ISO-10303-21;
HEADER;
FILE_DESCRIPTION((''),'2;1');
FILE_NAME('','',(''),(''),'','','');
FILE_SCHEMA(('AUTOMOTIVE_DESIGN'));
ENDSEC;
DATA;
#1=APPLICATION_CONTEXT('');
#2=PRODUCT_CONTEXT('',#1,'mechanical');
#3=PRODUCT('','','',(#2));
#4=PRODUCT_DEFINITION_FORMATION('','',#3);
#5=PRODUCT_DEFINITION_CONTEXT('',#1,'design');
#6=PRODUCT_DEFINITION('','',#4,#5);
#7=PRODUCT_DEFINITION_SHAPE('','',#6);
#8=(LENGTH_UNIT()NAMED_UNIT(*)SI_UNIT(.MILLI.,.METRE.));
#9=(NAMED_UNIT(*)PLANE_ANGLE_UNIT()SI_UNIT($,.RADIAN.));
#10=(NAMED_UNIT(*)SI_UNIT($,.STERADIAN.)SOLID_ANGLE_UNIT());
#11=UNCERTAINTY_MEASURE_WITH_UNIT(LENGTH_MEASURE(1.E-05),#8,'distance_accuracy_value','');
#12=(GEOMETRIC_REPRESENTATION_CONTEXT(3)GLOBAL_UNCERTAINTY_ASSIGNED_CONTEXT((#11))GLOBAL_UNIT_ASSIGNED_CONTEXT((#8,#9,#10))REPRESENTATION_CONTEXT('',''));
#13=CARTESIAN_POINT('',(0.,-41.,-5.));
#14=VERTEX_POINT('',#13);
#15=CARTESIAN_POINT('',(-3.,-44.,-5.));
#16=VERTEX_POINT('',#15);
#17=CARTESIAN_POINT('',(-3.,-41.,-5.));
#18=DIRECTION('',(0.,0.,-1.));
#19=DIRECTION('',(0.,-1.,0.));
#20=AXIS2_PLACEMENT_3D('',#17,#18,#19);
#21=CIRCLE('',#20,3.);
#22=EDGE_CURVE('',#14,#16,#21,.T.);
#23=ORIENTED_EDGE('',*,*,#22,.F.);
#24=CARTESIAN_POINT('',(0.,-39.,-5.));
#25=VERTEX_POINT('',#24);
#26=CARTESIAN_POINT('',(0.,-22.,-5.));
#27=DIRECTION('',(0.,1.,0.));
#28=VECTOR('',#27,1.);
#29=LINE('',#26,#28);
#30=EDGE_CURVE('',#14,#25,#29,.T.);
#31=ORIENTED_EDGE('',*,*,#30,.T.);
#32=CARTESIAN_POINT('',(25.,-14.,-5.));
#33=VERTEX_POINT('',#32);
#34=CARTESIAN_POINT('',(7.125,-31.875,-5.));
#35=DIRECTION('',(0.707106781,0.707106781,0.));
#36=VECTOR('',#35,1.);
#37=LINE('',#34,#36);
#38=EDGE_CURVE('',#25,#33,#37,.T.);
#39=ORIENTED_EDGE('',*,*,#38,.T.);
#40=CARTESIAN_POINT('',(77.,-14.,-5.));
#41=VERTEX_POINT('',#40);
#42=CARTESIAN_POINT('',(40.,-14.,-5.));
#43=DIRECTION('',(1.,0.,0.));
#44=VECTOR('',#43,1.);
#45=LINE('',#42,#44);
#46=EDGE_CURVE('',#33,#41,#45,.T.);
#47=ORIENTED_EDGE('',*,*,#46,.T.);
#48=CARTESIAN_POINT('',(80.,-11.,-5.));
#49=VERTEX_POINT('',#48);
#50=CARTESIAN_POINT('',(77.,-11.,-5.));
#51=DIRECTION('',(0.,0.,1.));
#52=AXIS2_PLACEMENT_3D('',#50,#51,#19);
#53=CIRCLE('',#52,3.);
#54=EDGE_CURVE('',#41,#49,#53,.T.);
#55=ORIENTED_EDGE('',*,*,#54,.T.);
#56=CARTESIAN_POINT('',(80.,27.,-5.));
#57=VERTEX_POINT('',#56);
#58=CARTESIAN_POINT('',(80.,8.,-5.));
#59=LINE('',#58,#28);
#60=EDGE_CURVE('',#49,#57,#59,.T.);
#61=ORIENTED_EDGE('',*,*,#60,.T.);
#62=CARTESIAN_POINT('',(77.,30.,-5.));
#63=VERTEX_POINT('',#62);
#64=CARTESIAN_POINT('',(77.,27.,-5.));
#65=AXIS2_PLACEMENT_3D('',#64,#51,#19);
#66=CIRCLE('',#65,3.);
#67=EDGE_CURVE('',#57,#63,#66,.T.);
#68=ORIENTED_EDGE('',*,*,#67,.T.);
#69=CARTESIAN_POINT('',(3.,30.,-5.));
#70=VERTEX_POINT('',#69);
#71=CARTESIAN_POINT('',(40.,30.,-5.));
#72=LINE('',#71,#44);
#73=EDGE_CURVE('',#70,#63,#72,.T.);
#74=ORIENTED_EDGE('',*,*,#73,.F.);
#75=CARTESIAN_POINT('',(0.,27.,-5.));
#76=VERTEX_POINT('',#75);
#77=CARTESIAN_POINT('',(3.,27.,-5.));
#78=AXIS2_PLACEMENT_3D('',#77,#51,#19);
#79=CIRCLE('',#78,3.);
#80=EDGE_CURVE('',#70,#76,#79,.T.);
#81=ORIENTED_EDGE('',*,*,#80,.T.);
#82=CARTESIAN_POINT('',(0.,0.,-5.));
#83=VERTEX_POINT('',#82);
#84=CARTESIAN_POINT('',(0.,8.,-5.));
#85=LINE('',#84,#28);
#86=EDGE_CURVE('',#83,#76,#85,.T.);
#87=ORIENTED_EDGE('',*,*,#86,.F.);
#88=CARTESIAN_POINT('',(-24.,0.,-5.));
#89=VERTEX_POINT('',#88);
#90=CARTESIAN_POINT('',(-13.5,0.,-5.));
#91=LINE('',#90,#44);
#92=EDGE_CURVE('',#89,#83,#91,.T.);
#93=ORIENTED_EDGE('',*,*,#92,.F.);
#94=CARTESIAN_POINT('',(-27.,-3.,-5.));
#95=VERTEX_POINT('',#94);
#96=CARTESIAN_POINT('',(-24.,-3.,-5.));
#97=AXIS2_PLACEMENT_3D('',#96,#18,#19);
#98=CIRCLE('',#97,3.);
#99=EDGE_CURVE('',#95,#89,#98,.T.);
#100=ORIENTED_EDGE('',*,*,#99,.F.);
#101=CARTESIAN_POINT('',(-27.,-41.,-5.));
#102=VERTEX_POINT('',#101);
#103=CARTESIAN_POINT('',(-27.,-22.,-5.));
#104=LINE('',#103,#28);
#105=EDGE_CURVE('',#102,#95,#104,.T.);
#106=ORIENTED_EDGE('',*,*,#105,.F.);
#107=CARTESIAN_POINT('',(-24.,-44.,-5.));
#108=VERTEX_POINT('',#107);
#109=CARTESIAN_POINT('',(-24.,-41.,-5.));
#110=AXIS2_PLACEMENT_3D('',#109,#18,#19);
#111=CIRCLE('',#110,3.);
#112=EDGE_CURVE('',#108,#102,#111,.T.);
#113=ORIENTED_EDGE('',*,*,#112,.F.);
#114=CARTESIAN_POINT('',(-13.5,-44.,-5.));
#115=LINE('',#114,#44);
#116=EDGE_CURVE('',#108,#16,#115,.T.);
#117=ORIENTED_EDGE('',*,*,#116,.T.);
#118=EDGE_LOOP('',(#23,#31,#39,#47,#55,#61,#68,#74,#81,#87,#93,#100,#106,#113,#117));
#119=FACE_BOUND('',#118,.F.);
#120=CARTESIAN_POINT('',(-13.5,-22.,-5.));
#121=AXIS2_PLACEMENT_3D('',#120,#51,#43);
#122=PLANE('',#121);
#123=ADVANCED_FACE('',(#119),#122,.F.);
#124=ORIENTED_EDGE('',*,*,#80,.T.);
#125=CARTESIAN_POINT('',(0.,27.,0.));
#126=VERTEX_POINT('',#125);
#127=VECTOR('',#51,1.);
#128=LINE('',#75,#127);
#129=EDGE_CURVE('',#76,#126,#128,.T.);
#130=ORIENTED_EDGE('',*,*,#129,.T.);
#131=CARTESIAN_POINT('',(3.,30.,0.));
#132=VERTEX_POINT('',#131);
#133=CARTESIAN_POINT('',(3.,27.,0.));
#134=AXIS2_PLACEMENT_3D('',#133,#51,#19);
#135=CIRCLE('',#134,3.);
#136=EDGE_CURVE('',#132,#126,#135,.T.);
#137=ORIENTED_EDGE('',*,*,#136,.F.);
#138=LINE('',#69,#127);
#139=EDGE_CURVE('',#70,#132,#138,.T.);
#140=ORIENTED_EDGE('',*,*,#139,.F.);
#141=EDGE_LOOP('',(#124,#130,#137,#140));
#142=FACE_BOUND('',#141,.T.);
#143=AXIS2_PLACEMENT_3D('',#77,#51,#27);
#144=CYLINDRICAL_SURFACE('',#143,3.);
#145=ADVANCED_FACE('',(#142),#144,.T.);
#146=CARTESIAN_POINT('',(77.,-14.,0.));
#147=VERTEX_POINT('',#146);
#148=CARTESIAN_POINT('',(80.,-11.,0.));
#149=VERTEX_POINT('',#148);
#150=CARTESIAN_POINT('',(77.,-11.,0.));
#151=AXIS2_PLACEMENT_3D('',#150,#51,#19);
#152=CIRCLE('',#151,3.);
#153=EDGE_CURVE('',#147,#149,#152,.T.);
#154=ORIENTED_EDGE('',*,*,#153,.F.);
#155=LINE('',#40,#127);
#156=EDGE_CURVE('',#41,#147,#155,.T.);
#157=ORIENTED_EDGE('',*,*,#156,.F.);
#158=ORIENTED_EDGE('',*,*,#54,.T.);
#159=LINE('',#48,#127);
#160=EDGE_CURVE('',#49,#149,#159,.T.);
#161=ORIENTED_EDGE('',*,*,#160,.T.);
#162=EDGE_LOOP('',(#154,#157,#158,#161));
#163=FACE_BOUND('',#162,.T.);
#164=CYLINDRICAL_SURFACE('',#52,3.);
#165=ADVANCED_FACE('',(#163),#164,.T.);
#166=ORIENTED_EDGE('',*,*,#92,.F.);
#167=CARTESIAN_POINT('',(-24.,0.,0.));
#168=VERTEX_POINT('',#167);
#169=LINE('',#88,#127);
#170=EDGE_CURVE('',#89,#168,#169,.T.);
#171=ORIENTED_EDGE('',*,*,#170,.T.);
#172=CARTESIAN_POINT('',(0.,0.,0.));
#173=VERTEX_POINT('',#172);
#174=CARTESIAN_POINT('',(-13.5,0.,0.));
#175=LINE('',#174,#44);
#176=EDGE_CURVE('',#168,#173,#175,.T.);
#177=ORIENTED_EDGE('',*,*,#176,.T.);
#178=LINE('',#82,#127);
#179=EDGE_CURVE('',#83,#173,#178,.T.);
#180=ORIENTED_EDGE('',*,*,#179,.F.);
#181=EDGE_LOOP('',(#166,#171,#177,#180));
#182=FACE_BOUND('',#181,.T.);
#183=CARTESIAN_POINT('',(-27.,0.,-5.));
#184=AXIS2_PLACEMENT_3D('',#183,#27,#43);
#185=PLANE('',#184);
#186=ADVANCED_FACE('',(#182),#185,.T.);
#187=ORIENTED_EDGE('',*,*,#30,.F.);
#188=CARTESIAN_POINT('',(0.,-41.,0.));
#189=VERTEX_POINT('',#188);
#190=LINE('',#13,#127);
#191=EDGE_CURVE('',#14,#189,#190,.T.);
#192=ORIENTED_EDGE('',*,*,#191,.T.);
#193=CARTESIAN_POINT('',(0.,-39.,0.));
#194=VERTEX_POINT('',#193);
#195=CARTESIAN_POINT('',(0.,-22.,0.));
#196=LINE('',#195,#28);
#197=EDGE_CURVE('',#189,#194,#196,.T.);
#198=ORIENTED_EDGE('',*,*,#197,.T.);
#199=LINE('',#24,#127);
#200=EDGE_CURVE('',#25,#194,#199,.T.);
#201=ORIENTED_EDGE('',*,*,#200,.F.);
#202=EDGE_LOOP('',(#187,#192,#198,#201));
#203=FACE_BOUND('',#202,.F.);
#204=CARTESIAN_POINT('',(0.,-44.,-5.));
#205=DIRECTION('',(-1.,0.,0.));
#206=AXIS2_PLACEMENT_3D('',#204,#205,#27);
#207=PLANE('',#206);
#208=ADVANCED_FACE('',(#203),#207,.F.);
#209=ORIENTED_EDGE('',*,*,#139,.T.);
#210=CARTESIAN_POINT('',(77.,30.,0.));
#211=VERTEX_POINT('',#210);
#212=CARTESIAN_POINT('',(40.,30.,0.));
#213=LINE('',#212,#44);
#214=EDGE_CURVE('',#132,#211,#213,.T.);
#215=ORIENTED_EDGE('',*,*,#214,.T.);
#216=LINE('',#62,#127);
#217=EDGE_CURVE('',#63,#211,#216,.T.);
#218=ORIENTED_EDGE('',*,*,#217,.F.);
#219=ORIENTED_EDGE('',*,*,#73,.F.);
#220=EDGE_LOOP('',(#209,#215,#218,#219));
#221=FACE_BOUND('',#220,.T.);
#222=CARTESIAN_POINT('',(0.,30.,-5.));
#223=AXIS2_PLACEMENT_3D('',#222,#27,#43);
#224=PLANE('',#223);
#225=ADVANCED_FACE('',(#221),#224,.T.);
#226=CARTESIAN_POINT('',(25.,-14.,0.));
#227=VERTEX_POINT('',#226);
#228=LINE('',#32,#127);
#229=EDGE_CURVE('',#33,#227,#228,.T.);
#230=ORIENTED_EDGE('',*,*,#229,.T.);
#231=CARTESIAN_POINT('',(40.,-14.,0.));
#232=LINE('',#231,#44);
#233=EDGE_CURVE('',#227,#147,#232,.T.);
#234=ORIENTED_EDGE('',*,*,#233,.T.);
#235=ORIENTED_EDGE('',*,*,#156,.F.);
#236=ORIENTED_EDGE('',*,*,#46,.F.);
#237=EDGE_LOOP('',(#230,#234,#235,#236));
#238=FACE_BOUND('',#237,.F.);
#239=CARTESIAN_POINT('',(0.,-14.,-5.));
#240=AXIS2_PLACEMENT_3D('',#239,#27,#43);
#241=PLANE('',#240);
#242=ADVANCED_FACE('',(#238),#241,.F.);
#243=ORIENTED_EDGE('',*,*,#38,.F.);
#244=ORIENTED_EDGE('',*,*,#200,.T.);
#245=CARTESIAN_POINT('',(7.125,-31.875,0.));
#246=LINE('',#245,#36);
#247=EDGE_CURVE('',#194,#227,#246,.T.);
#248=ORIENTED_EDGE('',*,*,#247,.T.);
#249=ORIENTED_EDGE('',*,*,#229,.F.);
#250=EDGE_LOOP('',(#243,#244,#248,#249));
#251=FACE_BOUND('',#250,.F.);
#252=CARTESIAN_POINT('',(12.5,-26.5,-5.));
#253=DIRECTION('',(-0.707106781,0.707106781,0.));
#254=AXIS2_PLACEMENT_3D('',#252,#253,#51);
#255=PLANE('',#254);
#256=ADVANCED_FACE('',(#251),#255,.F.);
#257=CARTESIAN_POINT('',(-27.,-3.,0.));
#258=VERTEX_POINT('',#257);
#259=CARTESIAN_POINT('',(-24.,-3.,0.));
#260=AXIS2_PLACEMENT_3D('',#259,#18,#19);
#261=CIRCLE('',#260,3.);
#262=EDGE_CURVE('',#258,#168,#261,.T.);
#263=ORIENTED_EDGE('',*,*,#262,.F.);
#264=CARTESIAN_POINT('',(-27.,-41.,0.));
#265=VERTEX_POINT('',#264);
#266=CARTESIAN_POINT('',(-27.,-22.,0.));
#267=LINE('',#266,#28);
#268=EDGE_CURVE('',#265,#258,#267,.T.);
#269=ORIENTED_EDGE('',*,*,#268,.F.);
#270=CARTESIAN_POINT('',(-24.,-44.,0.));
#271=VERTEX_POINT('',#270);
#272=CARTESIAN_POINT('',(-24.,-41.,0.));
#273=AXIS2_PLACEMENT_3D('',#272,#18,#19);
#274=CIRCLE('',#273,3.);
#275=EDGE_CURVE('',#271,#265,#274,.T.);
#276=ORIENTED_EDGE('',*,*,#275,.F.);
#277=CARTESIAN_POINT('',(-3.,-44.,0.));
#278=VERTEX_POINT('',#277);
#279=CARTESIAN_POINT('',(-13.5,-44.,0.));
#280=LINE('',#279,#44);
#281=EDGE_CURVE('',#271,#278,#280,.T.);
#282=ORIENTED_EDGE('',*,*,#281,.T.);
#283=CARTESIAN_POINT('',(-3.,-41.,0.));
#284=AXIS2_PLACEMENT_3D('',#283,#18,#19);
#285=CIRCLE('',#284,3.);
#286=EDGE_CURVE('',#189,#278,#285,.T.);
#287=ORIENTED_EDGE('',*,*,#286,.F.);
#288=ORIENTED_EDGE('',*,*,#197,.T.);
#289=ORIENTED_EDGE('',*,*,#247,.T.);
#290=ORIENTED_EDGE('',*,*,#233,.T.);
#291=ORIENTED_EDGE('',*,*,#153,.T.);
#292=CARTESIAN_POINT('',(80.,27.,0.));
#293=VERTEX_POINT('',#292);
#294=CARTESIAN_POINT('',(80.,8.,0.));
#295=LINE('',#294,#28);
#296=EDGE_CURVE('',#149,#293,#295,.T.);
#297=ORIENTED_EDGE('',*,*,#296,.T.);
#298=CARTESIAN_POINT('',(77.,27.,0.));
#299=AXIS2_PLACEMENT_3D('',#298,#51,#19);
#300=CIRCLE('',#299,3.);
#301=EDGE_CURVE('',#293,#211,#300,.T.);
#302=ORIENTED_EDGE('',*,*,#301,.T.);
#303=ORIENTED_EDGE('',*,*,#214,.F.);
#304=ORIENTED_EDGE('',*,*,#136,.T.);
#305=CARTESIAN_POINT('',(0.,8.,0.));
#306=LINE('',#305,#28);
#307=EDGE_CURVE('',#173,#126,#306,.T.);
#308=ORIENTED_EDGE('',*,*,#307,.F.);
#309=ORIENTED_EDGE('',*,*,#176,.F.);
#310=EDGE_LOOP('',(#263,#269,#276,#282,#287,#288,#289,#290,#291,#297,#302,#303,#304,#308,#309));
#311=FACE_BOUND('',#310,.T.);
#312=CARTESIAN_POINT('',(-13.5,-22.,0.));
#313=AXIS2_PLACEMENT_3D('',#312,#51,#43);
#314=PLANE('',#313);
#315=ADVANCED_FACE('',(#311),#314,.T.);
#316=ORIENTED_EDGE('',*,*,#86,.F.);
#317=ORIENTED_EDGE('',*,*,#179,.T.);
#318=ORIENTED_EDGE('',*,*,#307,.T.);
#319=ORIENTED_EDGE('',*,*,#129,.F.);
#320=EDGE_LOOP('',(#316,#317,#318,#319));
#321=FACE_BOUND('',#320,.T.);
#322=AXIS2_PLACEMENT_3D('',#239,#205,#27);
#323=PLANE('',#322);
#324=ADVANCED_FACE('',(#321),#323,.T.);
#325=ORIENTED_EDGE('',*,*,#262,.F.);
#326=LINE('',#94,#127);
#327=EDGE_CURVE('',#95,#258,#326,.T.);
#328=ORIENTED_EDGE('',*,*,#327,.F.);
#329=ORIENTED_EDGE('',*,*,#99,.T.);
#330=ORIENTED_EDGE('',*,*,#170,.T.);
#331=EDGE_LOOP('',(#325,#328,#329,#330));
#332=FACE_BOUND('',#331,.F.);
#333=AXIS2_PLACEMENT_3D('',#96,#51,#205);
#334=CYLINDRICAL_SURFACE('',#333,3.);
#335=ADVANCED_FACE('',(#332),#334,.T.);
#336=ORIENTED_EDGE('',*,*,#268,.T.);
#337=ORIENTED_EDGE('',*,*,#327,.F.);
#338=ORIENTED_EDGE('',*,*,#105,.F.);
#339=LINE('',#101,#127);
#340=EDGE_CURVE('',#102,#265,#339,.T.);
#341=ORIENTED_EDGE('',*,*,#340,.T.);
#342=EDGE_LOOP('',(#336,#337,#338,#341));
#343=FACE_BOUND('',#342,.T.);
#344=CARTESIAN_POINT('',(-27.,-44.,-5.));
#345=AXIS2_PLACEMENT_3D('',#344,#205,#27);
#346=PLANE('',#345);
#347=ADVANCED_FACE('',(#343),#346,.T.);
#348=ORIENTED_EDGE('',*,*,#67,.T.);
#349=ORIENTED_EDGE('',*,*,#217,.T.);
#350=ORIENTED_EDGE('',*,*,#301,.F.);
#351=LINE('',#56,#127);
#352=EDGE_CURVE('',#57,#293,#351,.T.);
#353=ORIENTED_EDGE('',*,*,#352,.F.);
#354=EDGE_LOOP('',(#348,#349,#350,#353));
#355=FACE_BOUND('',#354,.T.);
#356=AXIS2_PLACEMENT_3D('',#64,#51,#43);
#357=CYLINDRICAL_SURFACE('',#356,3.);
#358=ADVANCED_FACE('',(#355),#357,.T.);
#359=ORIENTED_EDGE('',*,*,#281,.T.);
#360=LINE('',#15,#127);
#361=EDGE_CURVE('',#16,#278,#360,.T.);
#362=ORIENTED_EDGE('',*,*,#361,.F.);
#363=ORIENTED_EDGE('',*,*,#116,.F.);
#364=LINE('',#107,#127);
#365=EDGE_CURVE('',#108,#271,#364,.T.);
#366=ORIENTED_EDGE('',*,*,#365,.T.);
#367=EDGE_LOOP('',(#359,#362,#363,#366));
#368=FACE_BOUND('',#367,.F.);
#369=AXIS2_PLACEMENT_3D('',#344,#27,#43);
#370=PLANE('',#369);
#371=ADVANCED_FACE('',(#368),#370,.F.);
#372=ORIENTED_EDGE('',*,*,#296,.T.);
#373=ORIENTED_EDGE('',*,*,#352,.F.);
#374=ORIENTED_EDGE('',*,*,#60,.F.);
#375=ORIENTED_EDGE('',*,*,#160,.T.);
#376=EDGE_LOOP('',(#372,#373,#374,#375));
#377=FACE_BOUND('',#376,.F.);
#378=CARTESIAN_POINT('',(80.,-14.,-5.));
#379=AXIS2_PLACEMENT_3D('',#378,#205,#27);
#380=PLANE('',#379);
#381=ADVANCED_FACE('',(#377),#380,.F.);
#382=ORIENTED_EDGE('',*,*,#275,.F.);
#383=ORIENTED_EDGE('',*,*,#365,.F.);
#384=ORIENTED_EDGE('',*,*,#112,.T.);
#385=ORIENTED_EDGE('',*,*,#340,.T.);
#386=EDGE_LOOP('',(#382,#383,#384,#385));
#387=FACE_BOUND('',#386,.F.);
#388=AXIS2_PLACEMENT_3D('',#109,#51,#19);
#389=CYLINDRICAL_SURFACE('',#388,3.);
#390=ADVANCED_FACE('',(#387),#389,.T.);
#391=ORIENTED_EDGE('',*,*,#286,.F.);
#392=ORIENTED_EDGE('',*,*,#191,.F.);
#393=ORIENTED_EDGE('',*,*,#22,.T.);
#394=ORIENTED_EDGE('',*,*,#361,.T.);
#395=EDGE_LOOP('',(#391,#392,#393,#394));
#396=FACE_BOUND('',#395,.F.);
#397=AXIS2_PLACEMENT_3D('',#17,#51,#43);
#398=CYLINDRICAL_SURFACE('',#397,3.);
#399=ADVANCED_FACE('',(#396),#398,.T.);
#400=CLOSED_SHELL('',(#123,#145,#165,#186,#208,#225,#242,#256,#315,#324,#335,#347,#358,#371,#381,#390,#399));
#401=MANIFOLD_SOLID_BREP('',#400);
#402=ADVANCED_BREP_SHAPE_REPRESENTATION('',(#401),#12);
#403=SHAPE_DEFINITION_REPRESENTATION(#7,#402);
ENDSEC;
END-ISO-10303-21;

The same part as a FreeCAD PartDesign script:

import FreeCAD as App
import Part
import Sketcher

V = App.Vector
Q = App.Units.Quantity


def edges_at(feature, points):
    """Names of the edges that pass closest to the given points."""
    edges = feature.Shape.Edges
    near = lambda p: min(range(len(edges)), key=lambda i: edges[i].distToShape(Part.Vertex(*p))[0])
    return sorted({f"Edge{near(p) + 1}" for p in points})

doc = App.newDocument("Part")
params = doc.addObject("Spreadsheet::Sheet", "Params")
for row, (alias, value) in enumerate([
    ("sketch1_width", "27 mm"),
    ("sketch1_height", "44 mm"),
    ("pad1_length", "5 mm"),
    ("sketch2_width", "80 mm"),
    ("sketch2_height", "44 mm"),
    ("pad2_length", "5 mm"),
    ("chamfer_size", "25 mm"),
    ("fillet_radius", "3 mm"),
], start=1):
    params.set(f"A{row}", alias)
    params.set(f"B{row}", "=" + value)
    params.setAlias(f"B{row}", alias)

body = doc.addObject("PartDesign::Body", "Body")

sketch1 = body.newObject("Sketcher::SketchObject", "Sketch")
sketch1.AttachmentSupport = (doc.getObject("XY_Plane"), [""])
sketch1.MapMode = "FlatFace"
sketch1.AttachmentOffset = App.Placement(V(0, 0, -5), App.Rotation())
sketch1.addGeometry([
    Part.LineSegment(V(-27, 0, 0), V(-27, -44, 0)),
    Part.LineSegment(V(-27, -44, 0), V(0, -44, 0)),
    Part.LineSegment(V(0, -44, 0), V(0, 0, 0)),
    Part.LineSegment(V(0, 0, 0), V(-27, 0, 0)),
], False)
sketch1.addConstraint([
    Sketcher.Constraint("Coincident", 0, 2, 1, 1),
    Sketcher.Constraint("Coincident", 1, 2, 2, 1),
    Sketcher.Constraint("Coincident", 2, 2, 3, 1),
    Sketcher.Constraint("Coincident", 3, 2, 0, 1),
    Sketcher.Constraint("Vertical", 0),
    Sketcher.Constraint("Horizontal", 1),
    Sketcher.Constraint("Vertical", 2),
    Sketcher.Constraint("Horizontal", 3),
    Sketcher.Constraint("Coincident", 2, 2, -1, 1),
    Sketcher.Constraint("DistanceX", 1, 1, 1, 2, Q("27 mm")),
    Sketcher.Constraint("DistanceY", 0, 2, 0, 1, Q("44 mm")),
])
sketch1.setExpression("Constraints[9]", "Params.sketch1_width")
sketch1.setExpression("Constraints[10]", "Params.sketch1_height")
pad1 = body.newObject("PartDesign::Pad", "Pad")
pad1.Profile = sketch1
pad1.setExpression("Length", "Params.pad1_length")
body2 = doc.addObject("PartDesign::Body", "Body001")

sketch2 = body2.newObject("Sketcher::SketchObject", "Sketch001")
sketch2.AttachmentSupport = (doc.getObject("XY_Plane001"), [""])
sketch2.MapMode = "FlatFace"
sketch2.AttachmentOffset = App.Placement(V(0, 0, -5), App.Rotation())
sketch2.addGeometry([
    Part.LineSegment(V(0, 30, 0), V(0, -14, 0)),
    Part.LineSegment(V(0, -14, 0), V(80, -14, 0)),
    Part.LineSegment(V(80, -14, 0), V(80, 30, 0)),
    Part.LineSegment(V(80, 30, 0), V(0, 30, 0)),
], False)
sketch2.addConstraint([
    Sketcher.Constraint("Coincident", 0, 2, 1, 1),
    Sketcher.Constraint("Coincident", 1, 2, 2, 1),
    Sketcher.Constraint("Coincident", 2, 2, 3, 1),
    Sketcher.Constraint("Coincident", 3, 2, 0, 1),
    Sketcher.Constraint("Vertical", 0),
    Sketcher.Constraint("Horizontal", 1),
    Sketcher.Constraint("Vertical", 2),
    Sketcher.Constraint("Horizontal", 3),
    Sketcher.Constraint("PointOnObject", 0, 2, -2),
    Sketcher.Constraint("DistanceX", 1, 1, 1, 2, Q("80 mm")),
    Sketcher.Constraint("DistanceY", 0, 2, 0, 1, Q("44 mm")),
    Sketcher.Constraint("DistanceY", 0, 2, -1, 1, Q("14 mm")),
])
sketch2.setExpression("Constraints[9]", "Params.sketch2_width")
sketch2.setExpression("Constraints[10]", "Params.sketch2_height")
pad2 = body2.newObject("PartDesign::Pad", "Pad001")
pad2.Profile = sketch2
pad2.setExpression("Length", "Params.pad2_length")
doc.recompute()

boolean = body2.newObject("PartDesign::Boolean", "Boolean")
boolean.Type = "Fuse"
boolean.addObjects([body])
doc.recompute()

chamfer = body2.newObject("PartDesign::Chamfer", "Chamfer")
chamfer.Base = (boolean, edges_at(boolean, [(0, -14, -2.5)]))
chamfer.setExpression("Size", "Params.chamfer_size")
doc.recompute()

fillet = body2.newObject("PartDesign::Fillet", "Fillet")
fillet.Base = (chamfer, edges_at(chamfer, [
    (80, -14, -2.5),
    (80, 30, -2.5),
    (0, 30, -2.5),
    (0, -44, -2.5),
    (-27, -44, -2.5),
    (-27, 0, -2.5),
]))
fillet.setExpression("Radius", "Params.fillet_radius")

doc.recompute()
